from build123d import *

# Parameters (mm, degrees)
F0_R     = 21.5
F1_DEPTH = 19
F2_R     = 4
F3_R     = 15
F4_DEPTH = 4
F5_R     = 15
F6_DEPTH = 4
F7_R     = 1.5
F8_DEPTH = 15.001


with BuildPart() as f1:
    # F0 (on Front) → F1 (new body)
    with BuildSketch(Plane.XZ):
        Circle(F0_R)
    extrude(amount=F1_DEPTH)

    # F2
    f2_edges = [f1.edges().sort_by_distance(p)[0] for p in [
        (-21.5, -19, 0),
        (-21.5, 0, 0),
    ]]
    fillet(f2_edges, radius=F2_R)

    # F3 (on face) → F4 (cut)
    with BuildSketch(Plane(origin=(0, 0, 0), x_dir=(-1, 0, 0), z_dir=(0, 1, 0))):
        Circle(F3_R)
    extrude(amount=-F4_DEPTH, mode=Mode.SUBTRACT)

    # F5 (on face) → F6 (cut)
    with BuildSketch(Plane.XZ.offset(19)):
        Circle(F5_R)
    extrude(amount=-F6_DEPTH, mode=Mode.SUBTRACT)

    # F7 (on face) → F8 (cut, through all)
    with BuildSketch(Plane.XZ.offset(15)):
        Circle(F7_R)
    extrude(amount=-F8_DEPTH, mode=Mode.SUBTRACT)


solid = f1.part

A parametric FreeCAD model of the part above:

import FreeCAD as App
import Part
import Sketcher
from FreeCAD import Vector


def edges_at(feature, points):
    """Names of the edges that pass closest to the given points."""
    edges = feature.Shape.Edges
    near = lambda p: min(range(len(edges)), key=lambda i: edges[i].distToShape(Part.Vertex(*p))[0])
    return sorted({f"Edge{near(p) + 1}" for p in points})

doc = App.newDocument("Part")
body = doc.addObject("PartDesign::Body", "Body")

# Sketch on XZ plane
sketch1 = body.newObject("Sketcher::SketchObject", "Sketch")
sketch1.AttachmentSupport = (doc.getObject("XZ_Plane"), [""])
sketch1.MapMode = "FlatFace"
sketch1.addGeometry(Part.Circle(Vector(0, 0, 0), Vector(0, 0, 1), 21.5), False)
sketch1.addConstraint(Sketcher.Constraint("Coincident", 0, 3, -1, 1))
sketch1.addConstraint(Sketcher.Constraint("Diameter", 0, 43.0))
pad1 = body.newObject("PartDesign::Pad", "Pad")
pad1.Profile = sketch1
pad1.Length = 19
doc.recompute()

fillet = body.newObject("PartDesign::Fillet", "Fillet")
fillet.Base = (pad1, edges_at(pad1, [(-21.5, -19, 0), (-21.5, 0, 0)]))
fillet.Radius = 4

# Sketch on XZ plane
sketch2 = body.newObject("Sketcher::SketchObject", "Sketch001")
sketch2.AttachmentSupport = (doc.getObject("XZ_Plane"), [""])
sketch2.MapMode = "FlatFace"
sketch2.addGeometry(Part.Circle(Vector(0, 0, 0), Vector(0, 0, 1), 15), False)
sketch2.addConstraint(Sketcher.Constraint("Coincident", 0, 3, -1, 1))
sketch2.addConstraint(Sketcher.Constraint("Diameter", 0, 30.0))
pocket1 = body.newObject("PartDesign::Pocket", "Pocket")
pocket1.Profile = sketch2
pocket1.Length = 4
pocket1.Reversed = True

# Sketch on XZ plane
sketch3 = body.newObject("Sketcher::SketchObject", "Sketch002")
sketch3.AttachmentSupport = (doc.getObject("XZ_Plane"), [""])
sketch3.MapMode = "FlatFace"
sketch3.AttachmentOffset = App.Placement(Vector(0, 0, 19), App.Rotation())
sketch3.addGeometry(Part.Circle(Vector(0, 0, 0), Vector(0, 0, 1), 15), False)
sketch3.addConstraint(Sketcher.Constraint("Coincident", 0, 3, -1, 1))
sketch3.addConstraint(Sketcher.Constraint("Diameter", 0, 30.0))
pocket2 = body.newObject("PartDesign::Pocket", "Pocket001")
pocket2.Profile = sketch3
pocket2.Length = 4

# Sketch on XZ plane
sketch4 = body.newObject("Sketcher::SketchObject", "Sketch003")
sketch4.AttachmentSupport = (doc.getObject("XZ_Plane"), [""])
sketch4.MapMode = "FlatFace"
sketch4.AttachmentOffset = App.Placement(Vector(0, 0, 15), App.Rotation())
sketch4.addGeometry(Part.Circle(Vector(0, 0, 0), Vector(0, 0, 1), 1.5), False)
sketch4.addConstraint(Sketcher.Constraint("Coincident", 0, 3, -1, 1))
sketch4.addConstraint(Sketcher.Constraint("Diameter", 0, 3.0))
pocket3 = body.newObject("PartDesign::Pocket", "Pocket002")
pocket3.Profile = sketch4
pocket3.Type = "ThroughAll"

doc.recompute()
